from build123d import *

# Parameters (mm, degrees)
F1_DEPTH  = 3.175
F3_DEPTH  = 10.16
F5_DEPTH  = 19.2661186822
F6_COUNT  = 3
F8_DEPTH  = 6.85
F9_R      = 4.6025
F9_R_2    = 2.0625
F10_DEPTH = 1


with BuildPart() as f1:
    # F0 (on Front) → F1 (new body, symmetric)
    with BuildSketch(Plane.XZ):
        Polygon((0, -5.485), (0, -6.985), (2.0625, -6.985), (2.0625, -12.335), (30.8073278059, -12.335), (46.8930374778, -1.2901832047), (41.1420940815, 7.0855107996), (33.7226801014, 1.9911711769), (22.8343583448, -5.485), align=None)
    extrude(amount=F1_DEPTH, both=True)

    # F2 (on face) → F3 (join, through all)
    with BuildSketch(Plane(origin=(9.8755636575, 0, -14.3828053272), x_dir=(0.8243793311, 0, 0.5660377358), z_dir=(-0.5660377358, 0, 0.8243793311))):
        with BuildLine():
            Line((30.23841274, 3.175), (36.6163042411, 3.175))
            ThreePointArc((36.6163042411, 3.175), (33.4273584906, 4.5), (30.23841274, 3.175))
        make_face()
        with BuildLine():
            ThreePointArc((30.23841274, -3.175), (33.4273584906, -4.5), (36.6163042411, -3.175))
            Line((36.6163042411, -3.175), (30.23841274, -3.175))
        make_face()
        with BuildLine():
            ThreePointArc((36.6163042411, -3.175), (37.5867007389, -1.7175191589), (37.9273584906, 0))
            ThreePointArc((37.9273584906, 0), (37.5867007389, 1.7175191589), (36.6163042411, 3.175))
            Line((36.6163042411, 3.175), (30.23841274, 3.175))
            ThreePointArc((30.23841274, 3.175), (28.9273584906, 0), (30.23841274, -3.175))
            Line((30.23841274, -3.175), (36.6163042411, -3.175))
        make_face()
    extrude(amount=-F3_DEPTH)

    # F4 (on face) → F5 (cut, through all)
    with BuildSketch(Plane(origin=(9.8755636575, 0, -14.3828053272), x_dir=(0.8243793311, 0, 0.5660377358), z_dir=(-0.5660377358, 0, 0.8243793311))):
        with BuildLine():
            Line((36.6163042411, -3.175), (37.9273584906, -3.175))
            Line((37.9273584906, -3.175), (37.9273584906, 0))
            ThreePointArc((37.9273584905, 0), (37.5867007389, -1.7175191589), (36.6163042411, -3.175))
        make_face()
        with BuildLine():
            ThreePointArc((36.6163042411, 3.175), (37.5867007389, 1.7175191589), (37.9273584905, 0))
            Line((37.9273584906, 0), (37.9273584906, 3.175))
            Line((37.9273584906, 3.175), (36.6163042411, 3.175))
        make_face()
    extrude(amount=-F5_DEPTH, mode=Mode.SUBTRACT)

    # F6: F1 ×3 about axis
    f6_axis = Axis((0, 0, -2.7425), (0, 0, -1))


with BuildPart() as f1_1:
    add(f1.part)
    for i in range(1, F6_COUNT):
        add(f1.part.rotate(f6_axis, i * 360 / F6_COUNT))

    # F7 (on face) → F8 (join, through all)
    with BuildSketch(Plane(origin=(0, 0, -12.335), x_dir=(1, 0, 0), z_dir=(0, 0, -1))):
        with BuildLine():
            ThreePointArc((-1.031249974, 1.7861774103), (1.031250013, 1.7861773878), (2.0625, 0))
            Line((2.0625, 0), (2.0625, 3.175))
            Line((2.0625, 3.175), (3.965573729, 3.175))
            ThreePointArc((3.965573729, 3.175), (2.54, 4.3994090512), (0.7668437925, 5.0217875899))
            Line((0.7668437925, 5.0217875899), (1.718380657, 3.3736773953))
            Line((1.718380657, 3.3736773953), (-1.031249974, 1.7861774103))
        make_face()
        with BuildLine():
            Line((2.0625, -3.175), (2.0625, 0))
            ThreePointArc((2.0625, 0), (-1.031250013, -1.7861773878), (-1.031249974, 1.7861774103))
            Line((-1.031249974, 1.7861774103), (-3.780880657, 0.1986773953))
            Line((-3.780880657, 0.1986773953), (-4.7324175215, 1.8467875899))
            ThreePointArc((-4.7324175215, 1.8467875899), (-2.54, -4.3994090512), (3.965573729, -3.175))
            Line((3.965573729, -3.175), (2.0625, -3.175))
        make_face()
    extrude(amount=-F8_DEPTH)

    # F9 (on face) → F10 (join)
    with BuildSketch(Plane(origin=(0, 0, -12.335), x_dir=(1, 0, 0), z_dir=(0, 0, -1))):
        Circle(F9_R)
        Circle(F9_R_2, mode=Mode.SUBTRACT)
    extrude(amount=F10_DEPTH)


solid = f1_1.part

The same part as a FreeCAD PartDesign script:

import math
import FreeCAD as App
import Part
import Sketcher
from FreeCAD import Vector
Q = App.Units.Quantity

doc = App.newDocument("Part")
body = doc.addObject("PartDesign::Body", "Body")

sketch1 = body.newObject("Sketcher::SketchObject", "Sketch")
sketch1.AttachmentSupport = (doc.getObject("XZ_Plane"), [""])
sketch1.MapMode = "FlatFace"
sketch1.addGeometry([
    Part.LineSegment(Vector(0, -5.5, 0), Vector(0, -7, 0)),
    Part.LineSegment(Vector(0, -7, 0), Vector(2.1, -7, 0)),
    Part.LineSegment(Vector(2.1, -7, 0), Vector(2.1, -12.3, 0)),
    Part.LineSegment(Vector(2.1, -12.3, 0), Vector(30.8, -12.3, 0)),
    Part.LineSegment(Vector(30.8, -12.3, 0), Vector(46.9, -1.3, 0)),
    Part.LineSegment(Vector(46.9, -1.3, 0), Vector(41.1, 7.1, 0)),
    Part.LineSegment(Vector(41.1, 7.1, 0), Vector(33.7, 2, 0)),
    Part.LineSegment(Vector(33.7, 2, 0), Vector(22.8, -5.5, 0)),
    Part.LineSegment(Vector(22.8, -5.5, 0), Vector(0, -5.5, 0)),
], False)
sketch1.addConstraint([
    Sketcher.Constraint("Coincident", 0, 2, 1, 1),
    Sketcher.Constraint("Coincident", 1, 2, 2, 1),
    Sketcher.Constraint("Coincident", 2, 2, 3, 1),
    Sketcher.Constraint("Coincident", 3, 2, 4, 1),
    Sketcher.Constraint("Coincident", 4, 2, 5, 1),
    Sketcher.Constraint("Coincident", 5, 2, 6, 1),
    Sketcher.Constraint("Coincident", 6, 2, 7, 1),
    Sketcher.Constraint("Coincident", 7, 2, 8, 1),
    Sketcher.Constraint("Coincident", 8, 2, 0, 1),
    Sketcher.Constraint("Vertical", 0),
    Sketcher.Constraint("Horizontal", 1),
    Sketcher.Constraint("Vertical", 2),
    Sketcher.Constraint("Horizontal", 3),
    Sketcher.Constraint("Horizontal", 8),
    Sketcher.Constraint("PointOnObject", 0, 2, -2),
    Sketcher.Constraint("Perpendicular", 4, 5),
    Sketcher.Constraint("Perpendicular", 5, 6),
    Sketcher.Constraint("Parallel", 6, 7),
    Sketcher.Constraint("Distance", 6, 9.0),
    Sketcher.Constraint("DistanceY", 0, 2, 0, 1, 1.5),
    Sketcher.Constraint("DistanceY", 2, 2, 2, 1, 5.35),
    Sketcher.Constraint("Distance", 5, 10.16),
    Sketcher.Constraint("DistanceX", 1, 1, 1, 2, 2.0625),
    Sketcher.Constraint("DistanceY", 0, 2, -1, 1, 6.985),
    Sketcher.Constraint("DistanceX", 8, 2, 8, 1, 22.834358),
    Sketcher.Constraint("Distance", 4, 19.51251),
    Sketcher.Constraint("DistanceX", 3, 1, 3, 2, 28.744828),
])
pad1 = body.newObject("PartDesign::Pad", "Pad")
pad1.Profile = sketch1
pad1.Length = 6.35
pad1.Midplane = True

sketch2 = body.newObject("Sketcher::SketchObject", "Sketch001")
sketch2.Placement = App.Placement(Vector(9.875564, 0, -14.382805), App.Rotation(Vector(0.824379331, 0, 0.566037736), Vector(0, 1, 0), Vector(-0.566037736, 0, 0.824379331), "ZXY"))
sketch2.addGeometry([
    Part.ArcOfCircle(Part.Circle(Vector(33.4, 0, 0), Vector(0, 0, 1), 4.5), math.radians(45), math.radians(135)),
    Part.ArcOfCircle(Part.Circle(Vector(33.4, 0, 0), Vector(0, 0, 1), 4.5), math.radians(135), math.radians(225)),
    Part.ArcOfCircle(Part.Circle(Vector(33.4, 0, 0), Vector(0, 0, 1), 4.5), math.radians(-135), math.radians(-45)),
    Part.ArcOfCircle(Part.Circle(Vector(33.4, 0, 0), Vector(0, 0, 1), 4.5), math.radians(-45), math.radians(0)),
    Part.ArcOfCircle(Part.Circle(Vector(33.4, 0, 0), Vector(0, 0, 1), 4.5), math.radians(0), math.radians(45)),
], False)
sketch2.addConstraint([
    Sketcher.Constraint("Tangent", 0, 2, 1, 1),
    Sketcher.Constraint("Tangent", 1, 2, 2, 1),
    Sketcher.Constraint("Tangent", 2, 2, 3, 1),
    Sketcher.Constraint("Tangent", 3, 2, 4, 1),
    Sketcher.Constraint("Tangent", 4, 2, 0, 1),
    Sketcher.Constraint("Coincident", 2, 3, 0, 3),
    Sketcher.Constraint("Symmetric", 0, 2, 1, 2, -1),
    Sketcher.Constraint("PointOnObject", 3, 2, -1),
    Sketcher.Constraint("Horizontal", 1, 2, 2, 2),
    Sketcher.Constraint("Horizontal", 0, 2, 4, 2),
    Sketcher.Constraint("Radius", 0, 4.5),
    Sketcher.Constraint("DistanceY", -1, 1, 0, 2, 3.175),
    Sketcher.Constraint("DistanceX", -1, 1, 0, 3, 33.427358),
])
pad2 = body.newObject("PartDesign::Pad", "Pad001")
pad2.Profile = sketch2
pad2.Type = "UpToLast"
pad2.Reversed = True

sketch3 = body.newObject("Sketcher::SketchObject", "Sketch002")
sketch3.Placement = App.Placement(Vector(9.875564, 0, -14.382805), App.Rotation(Vector(0.824379331, 0, 0.566037736), Vector(0, 1, 0), Vector(-0.566037736, 0, 0.824379331), "ZXY"))
sketch3.addGeometry([
    Part.LineSegment(Vector(36.6, -3.2, 0), Vector(37.9, -3.2, 0)),
    Part.LineSegment(Vector(37.9, -3.2, 0), Vector(37.9, 0, 0)),
    Part.ArcOfCircle(Part.Circle(Vector(33.4, 0, 0), Vector(0, 0, 1), 4.5), math.radians(-45), math.radians(0)),
    Part.ArcOfCircle(Part.Circle(Vector(33.4, 0, 0), Vector(0, 0, 1), 4.5), math.radians(0), math.radians(45)),
    Part.LineSegment(Vector(37.9, 0, 0), Vector(37.9, 3.2, 0)),
    Part.LineSegment(Vector(37.9, 3.2, 0), Vector(36.6, 3.2, 0)),
], False)
sketch3.addConstraint([
    Sketcher.Constraint("Coincident", 0, 2, 1, 1),
    Sketcher.Constraint("Tangent", 1, 2, 2, 2),
    Sketcher.Constraint("Coincident", 2, 1, 0, 1),
    Sketcher.Constraint("Tangent", 3, 1, 4, 1),
    Sketcher.Constraint("Coincident", 4, 2, 5, 1),
    Sketcher.Constraint("Coincident", 5, 2, 3, 2),
    Sketcher.Constraint("Horizontal", 0),
    Sketcher.Constraint("Vertical", 1),
    Sketcher.Constraint("Vertical", 4),
    Sketcher.Constraint("Horizontal", 5),
    Sketcher.Constraint("Coincident", 3, 3, 2, 3),
    Sketcher.Constraint("Equal", 2, 3),
    Sketcher.Constraint("Symmetric", 2, 1, 5, 2, -1),
    Sketcher.Constraint("Radius", 2, 4.5),
    Sketcher.Constraint("DistanceY", 1, 1, 1, 2, 3.175),
    Sketcher.Constraint("DistanceX", -1, 1, 2, 3, 33.427358),
])
pocket1 = body.newObject("PartDesign::Pocket", "Pocket")
pocket1.Profile = sketch3
pocket1.Type = "ThroughAll"
body2 = doc.addObject("PartDesign::Body", "Body001")
doc.recompute()

body2.BaseFeature = body
doc.recompute()

body3 = doc.addObject("PartDesign::Body", "Body002")
body3.BaseFeature = body
body3.Placement = App.Placement(Vector(0, 0, 0), App.Rotation(Vector(0, 0, -1), 120))
boolean = body2.newObject("PartDesign::Boolean", "Boolean")
boolean.Type = "Fuse"
boolean.addObjects([body3])
doc.recompute()

body.Placement = App.Placement(Vector(0, 0, 0), App.Rotation(Vector(0, 0, -1), 240))
boolean2 = body2.newObject("PartDesign::Boolean", "Boolean001")
boolean2.Type = "Fuse"
boolean2.addObjects([body])

sketch4 = body2.newObject("Sketcher::SketchObject", "Sketch003")
sketch4.AttachmentSupport = (doc.getObject("XY_Plane001"), [""])
sketch4.MapMode = "FlatFace"
sketch4.AttachmentOffset = App.Placement(Vector(0, 0, -12.335), App.Rotation())
sketch4.addGeometry([
    Part.ArcOfCircle(Part.Circle(Vector(0, 0, 0), Vector(0, 0, 1), 2.1), math.radians(-120), math.radians(0)),
    Part.LineSegment(Vector(2.1, 0, 0), Vector(2.1, -3.2, 0)),
    Part.LineSegment(Vector(2.1, -3.2, 0), Vector(4, -3.2, 0)),
    Part.ArcOfCircle(Part.Circle(Vector(0, 0, 0), Vector(0, 0, 1), 5.1), math.radians(-81), math.radians(-39)),
    Part.LineSegment(Vector(0.8, -5, 0), Vector(1.7, -3.4, 0)),
    Part.LineSegment(Vector(1.7, -3.4, 0), Vector(-1, -1.8, 0)),
    Part.LineSegment(Vector(2.1, 3.2, 0), Vector(2.1, 0, 0)),
    Part.ArcOfCircle(Part.Circle(Vector(0, 0, 0), Vector(0, 0, 1), 2.1), math.radians(0), math.radians(240)),
    Part.LineSegment(Vector(-1, -1.8, 0), Vector(-3.8, -0.2, 0)),
    Part.LineSegment(Vector(-3.8, -0.2, 0), Vector(-4.7, -1.8, 0)),
    Part.ArcOfCircle(Part.Circle(Vector(0, 0, 0), Vector(0, 0, 1), 5.1), math.radians(39), math.radians(201)),
    Part.LineSegment(Vector(4, 3.2, 0), Vector(2.1, 3.2, 0)),
], False)
sketch4.addConstraint([
    Sketcher.Constraint("Tangent", 0, 2, 1, 1),
    Sketcher.Constraint("Coincident", 1, 2, 2, 1),
    Sketcher.Constraint("Coincident", 2, 2, 3, 2),
    Sketcher.Constraint("Coincident", 3, 1, 4, 1),
    Sketcher.Constraint("Coincident", 4, 2, 5, 1),
    Sketcher.Constraint("Tangent", 5, 2, 0, 1),
    Sketcher.Constraint("Tangent", 6, 2, 7, 1),
    Sketcher.Constraint("Tangent", 7, 2, 8, 1),
    Sketcher.Constraint("Coincident", 8, 2, 9, 1),
    Sketcher.Constraint("Coincident", 9, 2, 10, 2),
    Sketcher.Constraint("Coincident", 10, 1, 11, 1),
    Sketcher.Constraint("Coincident", 11, 2, 6, 1),
    Sketcher.Constraint("Vertical", 1),
    Sketcher.Constraint("Horizontal", 2),
    Sketcher.Constraint("Vertical", 6),
    Sketcher.Constraint("Horizontal", 11),
    Sketcher.Constraint("Coincident", 0, 3, -1, 1),
    Sketcher.Constraint("Coincident", 3, 3, -1, 1),
    Sketcher.Constraint("Coincident", 7, 3, -1, 1),
    Sketcher.Constraint("Coincident", 10, 3, -1, 1),
    Sketcher.Constraint("Coincident", 7, 2, 5, 2),
    Sketcher.Constraint("Equal", 3, 10),
    Sketcher.Constraint("Perpendicular", 4, 5),
    Sketcher.Constraint("Perpendicular", 8, 9),
    Sketcher.Constraint("Vertical", 2, 2, 10, 1),
    Sketcher.Constraint("Equal", 5, 8),
    Sketcher.Constraint("Angle", 4, Q("60 deg")),
    Sketcher.Constraint("Radius", 3, 5.08),
    Sketcher.Constraint("Radius", 0, 2.0625),
    Sketcher.Constraint("DistanceY", 1, 2, 1, 1, 3.175),
    Sketcher.Constraint("Distance", 5, 3.175),
])
pad3 = body2.newObject("PartDesign::Pad", "Pad002")
pad3.Profile = sketch4
pad3.Type = "UpToLast"

sketch5 = body2.newObject("Sketcher::SketchObject", "Sketch004")
sketch5.AttachmentSupport = (doc.getObject("XY_Plane001"), [""])
sketch5.MapMode = "FlatFace"
sketch5.AttachmentOffset = App.Placement(Vector(0, 0, -12.335), App.Rotation())
sketch5.addGeometry([
    Part.Circle(Vector(0, 0, 0), Vector(0, 0, 1), 4.6),
    Part.Circle(Vector(0, 0, 0), Vector(0, 0, 1), 2.1),
], False)
sketch5.addConstraint([
    Sketcher.Constraint("Coincident", 0, 3, -1, 1),
    Sketcher.Constraint("Coincident", 1, 3, -1, 1),
    Sketcher.Constraint("Diameter", 0, 9.205),
    Sketcher.Constraint("Diameter", 1, 4.125),
])
pad4 = body2.newObject("PartDesign::Pad", "Pad003")
pad4.Profile = sketch5
pad4.Length = 1
pad4.Reversed = True

doc.recompute()
